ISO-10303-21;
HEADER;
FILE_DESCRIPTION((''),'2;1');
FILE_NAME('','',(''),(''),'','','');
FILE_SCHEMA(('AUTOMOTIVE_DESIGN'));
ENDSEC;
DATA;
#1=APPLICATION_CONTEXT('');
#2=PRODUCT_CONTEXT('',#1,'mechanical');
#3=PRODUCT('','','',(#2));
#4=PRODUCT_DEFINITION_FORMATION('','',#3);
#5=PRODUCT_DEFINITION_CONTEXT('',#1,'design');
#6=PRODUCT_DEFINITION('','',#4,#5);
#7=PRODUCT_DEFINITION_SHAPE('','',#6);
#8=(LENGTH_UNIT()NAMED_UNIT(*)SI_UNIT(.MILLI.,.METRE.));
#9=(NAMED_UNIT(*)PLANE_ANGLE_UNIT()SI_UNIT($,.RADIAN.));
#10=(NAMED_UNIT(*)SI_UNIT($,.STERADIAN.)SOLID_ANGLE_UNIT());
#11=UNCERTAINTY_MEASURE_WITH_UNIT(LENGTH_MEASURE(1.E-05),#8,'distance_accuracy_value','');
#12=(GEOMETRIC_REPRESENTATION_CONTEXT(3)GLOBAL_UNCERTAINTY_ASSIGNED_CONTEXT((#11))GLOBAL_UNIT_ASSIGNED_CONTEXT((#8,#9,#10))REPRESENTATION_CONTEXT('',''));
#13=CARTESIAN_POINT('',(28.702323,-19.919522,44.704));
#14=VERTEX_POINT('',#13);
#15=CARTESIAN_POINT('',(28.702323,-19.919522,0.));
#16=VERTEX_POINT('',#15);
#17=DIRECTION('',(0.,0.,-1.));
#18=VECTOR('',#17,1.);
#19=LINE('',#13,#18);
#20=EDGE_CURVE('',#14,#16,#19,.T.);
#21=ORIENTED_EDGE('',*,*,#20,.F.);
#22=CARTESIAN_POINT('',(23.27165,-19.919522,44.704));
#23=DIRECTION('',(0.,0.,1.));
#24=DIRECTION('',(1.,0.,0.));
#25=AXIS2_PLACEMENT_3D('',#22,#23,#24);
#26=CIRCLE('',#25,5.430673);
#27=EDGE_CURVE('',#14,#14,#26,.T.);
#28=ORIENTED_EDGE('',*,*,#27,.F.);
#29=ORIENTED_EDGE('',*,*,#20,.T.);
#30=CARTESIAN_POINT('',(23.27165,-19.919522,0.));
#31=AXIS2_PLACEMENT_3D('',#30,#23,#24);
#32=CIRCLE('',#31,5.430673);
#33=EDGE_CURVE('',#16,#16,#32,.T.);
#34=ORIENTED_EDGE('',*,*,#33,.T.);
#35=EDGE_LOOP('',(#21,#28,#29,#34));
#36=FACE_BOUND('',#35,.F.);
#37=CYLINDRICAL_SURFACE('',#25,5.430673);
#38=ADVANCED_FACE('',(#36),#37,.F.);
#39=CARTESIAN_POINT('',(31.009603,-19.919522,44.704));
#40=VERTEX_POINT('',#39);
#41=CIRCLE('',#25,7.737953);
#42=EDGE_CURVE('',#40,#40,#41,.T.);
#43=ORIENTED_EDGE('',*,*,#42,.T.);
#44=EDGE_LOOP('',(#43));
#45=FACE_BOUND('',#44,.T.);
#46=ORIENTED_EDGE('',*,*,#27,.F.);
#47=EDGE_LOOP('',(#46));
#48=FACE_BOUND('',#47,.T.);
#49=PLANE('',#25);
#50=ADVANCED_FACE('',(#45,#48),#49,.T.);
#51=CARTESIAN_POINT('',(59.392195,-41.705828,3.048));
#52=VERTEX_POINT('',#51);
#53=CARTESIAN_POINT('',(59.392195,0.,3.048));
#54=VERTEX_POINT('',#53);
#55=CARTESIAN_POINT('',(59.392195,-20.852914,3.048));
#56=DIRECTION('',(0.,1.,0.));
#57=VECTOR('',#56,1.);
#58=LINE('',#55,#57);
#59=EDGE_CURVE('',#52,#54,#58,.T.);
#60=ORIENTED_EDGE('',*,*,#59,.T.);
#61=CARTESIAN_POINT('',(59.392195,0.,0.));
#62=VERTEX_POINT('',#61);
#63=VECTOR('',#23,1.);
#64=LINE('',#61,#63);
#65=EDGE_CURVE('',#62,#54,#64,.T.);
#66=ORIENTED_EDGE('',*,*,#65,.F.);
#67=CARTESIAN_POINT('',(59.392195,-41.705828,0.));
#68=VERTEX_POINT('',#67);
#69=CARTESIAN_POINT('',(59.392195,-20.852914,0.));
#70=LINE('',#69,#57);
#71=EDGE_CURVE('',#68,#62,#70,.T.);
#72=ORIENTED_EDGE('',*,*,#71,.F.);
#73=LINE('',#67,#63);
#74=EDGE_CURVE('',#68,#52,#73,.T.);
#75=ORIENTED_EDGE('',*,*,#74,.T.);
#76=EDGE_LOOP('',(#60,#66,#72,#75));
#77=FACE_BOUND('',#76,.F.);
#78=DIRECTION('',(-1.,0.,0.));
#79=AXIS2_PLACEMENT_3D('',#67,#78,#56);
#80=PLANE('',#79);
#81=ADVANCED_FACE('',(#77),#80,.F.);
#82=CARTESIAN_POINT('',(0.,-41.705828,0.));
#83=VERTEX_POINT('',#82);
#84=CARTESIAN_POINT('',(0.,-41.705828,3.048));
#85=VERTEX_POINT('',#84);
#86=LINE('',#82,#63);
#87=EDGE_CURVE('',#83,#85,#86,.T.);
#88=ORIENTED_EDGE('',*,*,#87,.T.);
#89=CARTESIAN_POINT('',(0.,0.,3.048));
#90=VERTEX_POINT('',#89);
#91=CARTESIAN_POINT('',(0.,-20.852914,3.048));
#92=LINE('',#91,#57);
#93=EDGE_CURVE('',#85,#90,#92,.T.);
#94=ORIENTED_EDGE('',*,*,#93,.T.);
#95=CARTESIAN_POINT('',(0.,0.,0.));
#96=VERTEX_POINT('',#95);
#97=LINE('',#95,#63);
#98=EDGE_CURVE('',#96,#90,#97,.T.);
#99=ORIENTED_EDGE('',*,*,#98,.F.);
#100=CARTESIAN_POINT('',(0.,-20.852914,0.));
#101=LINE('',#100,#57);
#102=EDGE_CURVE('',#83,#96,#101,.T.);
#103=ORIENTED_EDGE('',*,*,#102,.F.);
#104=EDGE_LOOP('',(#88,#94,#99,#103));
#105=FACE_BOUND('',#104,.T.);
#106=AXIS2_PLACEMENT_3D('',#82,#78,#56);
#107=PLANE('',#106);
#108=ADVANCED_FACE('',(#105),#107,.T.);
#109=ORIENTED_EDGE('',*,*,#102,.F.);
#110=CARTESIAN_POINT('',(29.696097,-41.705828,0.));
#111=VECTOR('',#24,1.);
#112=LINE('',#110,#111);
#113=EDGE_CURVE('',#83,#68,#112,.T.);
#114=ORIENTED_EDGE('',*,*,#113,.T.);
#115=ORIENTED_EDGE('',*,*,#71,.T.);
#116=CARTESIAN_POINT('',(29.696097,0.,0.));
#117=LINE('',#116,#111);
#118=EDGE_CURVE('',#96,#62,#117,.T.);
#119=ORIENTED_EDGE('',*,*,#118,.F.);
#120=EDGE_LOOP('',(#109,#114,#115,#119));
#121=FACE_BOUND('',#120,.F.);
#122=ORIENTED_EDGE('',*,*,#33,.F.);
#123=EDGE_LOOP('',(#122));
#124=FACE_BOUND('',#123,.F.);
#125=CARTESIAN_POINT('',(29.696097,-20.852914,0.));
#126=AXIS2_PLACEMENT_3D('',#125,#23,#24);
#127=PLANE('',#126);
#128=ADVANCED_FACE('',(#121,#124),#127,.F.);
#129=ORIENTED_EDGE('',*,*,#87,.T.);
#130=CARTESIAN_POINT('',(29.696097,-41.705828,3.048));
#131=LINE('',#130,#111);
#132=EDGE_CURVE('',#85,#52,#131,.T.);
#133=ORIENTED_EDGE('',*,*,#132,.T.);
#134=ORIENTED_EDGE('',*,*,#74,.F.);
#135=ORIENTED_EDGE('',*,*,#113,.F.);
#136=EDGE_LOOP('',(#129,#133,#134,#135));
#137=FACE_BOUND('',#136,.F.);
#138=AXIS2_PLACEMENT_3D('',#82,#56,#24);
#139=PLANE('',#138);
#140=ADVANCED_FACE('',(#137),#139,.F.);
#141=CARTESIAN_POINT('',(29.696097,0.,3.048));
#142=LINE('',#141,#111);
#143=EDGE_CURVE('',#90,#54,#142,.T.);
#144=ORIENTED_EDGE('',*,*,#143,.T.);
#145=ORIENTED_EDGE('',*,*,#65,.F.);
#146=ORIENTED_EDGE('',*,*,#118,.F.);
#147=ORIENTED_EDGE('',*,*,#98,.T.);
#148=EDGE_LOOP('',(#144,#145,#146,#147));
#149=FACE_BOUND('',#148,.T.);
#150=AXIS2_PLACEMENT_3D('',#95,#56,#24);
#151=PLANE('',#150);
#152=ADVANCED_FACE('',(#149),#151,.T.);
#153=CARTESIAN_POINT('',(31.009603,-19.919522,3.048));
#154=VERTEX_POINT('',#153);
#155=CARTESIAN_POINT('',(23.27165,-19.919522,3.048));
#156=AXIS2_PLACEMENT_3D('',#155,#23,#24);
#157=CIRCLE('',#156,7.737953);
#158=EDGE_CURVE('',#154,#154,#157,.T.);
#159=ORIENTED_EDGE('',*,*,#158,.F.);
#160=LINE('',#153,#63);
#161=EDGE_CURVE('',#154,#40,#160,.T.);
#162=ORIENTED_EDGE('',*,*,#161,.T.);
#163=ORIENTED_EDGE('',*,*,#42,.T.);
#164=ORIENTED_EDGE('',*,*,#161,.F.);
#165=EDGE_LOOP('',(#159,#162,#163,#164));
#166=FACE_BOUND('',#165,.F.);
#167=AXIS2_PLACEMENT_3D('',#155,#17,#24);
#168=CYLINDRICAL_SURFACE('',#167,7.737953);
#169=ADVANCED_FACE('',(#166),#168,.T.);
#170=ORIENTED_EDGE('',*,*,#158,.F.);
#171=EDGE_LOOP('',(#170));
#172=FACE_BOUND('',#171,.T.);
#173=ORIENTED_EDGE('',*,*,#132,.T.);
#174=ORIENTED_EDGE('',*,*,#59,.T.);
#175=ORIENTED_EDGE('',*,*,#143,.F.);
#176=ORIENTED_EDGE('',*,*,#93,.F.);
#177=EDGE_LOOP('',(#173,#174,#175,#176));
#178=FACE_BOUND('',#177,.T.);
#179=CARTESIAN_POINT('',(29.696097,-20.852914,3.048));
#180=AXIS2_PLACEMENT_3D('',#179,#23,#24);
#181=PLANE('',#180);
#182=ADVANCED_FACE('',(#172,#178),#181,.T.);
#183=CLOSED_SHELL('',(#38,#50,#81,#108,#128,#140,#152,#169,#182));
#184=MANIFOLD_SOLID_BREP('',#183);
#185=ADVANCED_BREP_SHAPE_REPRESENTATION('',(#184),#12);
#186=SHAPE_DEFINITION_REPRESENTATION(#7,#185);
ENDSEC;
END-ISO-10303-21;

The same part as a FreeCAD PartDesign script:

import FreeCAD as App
import Part
import Sketcher
Q = App.Units.Quantity


def add_polygon(sketch, points):
    """Adds a closed chain of lines whose ends are joined by coincident constraints."""
    first, n = sketch.GeometryCount, len(points)
    for a, b in zip(points, points[1:] + points[:1]):
        sketch.addGeometry(Part.LineSegment(App.Vector(*a, 0), App.Vector(*b, 0)), False)
    for i in range(n):
        sketch.addConstraint(Sketcher.Constraint("Coincident", first + i, 2, first + (i + 1) % n, 1))

doc = App.newDocument("Part")
body = doc.addObject("PartDesign::Body", "Body")

# Sketch on XY plane
sketch1 = body.newObject("Sketcher::SketchObject", "Sketch")
sketch1.AttachmentSupport = (doc.getObject("XY_Plane"), [""])
sketch1.MapMode = "FlatFace"
add_polygon(sketch1, [(0, 0), (0, -42), (59, -42), (59, 0)])  # lines 0-3
sketch1.addConstraint([
    Sketcher.Constraint("Vertical", 0),
    Sketcher.Constraint("Horizontal", 1),
    Sketcher.Constraint("Vertical", 2),
    Sketcher.Constraint("Horizontal", 3),
    Sketcher.Constraint("Coincident", 3, 2, -1, 1),
    Sketcher.Constraint("DistanceX", 1, 1, 1, 2, Q("59.392195 mm")),
    Sketcher.Constraint("DistanceY", 0, 2, 0, 1, Q("41.705828 mm")),
])
pad1 = body.newObject("PartDesign::Pad", "Pad")
pad1.Profile = sketch1
pad1.Length = Q("0.12 in")

# Sketch on XY plane
sketch2 = body.newObject("Sketcher::SketchObject", "Sketch001")
sketch2.AttachmentSupport = (doc.getObject("XY_Plane"), [""])
sketch2.MapMode = "FlatFace"
sketch2.AttachmentOffset = App.Placement(App.Vector(0, 0, 0.12 * 25.4), App.Rotation())
sketch2.addGeometry(Part.Circle(App.Vector(23, -20, 0), App.Vector(0, 0, 1), 8), False)
sketch2.addConstraint([
    Sketcher.Constraint("Diameter", 0, Q("15.475906 mm")),
    Sketcher.Constraint("DistanceX", -1, 1, 0, 3, Q("23.27165 mm")),
    Sketcher.Constraint("DistanceY", 0, 3, -1, 1, Q("19.919522 mm")),
])
pad2 = body.newObject("PartDesign::Pad", "Pad001")
pad2.Profile = sketch2
pad2.Length = Q("1.64 in")

# Sketch on XY plane
sketch3 = body.newObject("Sketcher::SketchObject", "Sketch002")
sketch3.AttachmentSupport = (doc.getObject("XY_Plane"), [""])
sketch3.MapMode = "FlatFace"
sketch3.AttachmentOffset = App.Placement(App.Vector(0, 0, 1.76 * 25.4), App.Rotation())
sketch3.addGeometry(Part.Circle(App.Vector(23, -20, 0), App.Vector(0, 0, 1), 5), False)
sketch3.addConstraint([
    Sketcher.Constraint("Diameter", 0, Q("10.861346 mm")),
    Sketcher.Constraint("DistanceX", -1, 1, 0, 3, Q("23.27165 mm")),
    Sketcher.Constraint("DistanceY", 0, 3, -1, 1, Q("19.919522 mm")),
])
pocket1 = body.newObject("PartDesign::Pocket", "Pocket")
pocket1.Profile = sketch3
pocket1.Length = Q("2 in")

doc.recompute()
